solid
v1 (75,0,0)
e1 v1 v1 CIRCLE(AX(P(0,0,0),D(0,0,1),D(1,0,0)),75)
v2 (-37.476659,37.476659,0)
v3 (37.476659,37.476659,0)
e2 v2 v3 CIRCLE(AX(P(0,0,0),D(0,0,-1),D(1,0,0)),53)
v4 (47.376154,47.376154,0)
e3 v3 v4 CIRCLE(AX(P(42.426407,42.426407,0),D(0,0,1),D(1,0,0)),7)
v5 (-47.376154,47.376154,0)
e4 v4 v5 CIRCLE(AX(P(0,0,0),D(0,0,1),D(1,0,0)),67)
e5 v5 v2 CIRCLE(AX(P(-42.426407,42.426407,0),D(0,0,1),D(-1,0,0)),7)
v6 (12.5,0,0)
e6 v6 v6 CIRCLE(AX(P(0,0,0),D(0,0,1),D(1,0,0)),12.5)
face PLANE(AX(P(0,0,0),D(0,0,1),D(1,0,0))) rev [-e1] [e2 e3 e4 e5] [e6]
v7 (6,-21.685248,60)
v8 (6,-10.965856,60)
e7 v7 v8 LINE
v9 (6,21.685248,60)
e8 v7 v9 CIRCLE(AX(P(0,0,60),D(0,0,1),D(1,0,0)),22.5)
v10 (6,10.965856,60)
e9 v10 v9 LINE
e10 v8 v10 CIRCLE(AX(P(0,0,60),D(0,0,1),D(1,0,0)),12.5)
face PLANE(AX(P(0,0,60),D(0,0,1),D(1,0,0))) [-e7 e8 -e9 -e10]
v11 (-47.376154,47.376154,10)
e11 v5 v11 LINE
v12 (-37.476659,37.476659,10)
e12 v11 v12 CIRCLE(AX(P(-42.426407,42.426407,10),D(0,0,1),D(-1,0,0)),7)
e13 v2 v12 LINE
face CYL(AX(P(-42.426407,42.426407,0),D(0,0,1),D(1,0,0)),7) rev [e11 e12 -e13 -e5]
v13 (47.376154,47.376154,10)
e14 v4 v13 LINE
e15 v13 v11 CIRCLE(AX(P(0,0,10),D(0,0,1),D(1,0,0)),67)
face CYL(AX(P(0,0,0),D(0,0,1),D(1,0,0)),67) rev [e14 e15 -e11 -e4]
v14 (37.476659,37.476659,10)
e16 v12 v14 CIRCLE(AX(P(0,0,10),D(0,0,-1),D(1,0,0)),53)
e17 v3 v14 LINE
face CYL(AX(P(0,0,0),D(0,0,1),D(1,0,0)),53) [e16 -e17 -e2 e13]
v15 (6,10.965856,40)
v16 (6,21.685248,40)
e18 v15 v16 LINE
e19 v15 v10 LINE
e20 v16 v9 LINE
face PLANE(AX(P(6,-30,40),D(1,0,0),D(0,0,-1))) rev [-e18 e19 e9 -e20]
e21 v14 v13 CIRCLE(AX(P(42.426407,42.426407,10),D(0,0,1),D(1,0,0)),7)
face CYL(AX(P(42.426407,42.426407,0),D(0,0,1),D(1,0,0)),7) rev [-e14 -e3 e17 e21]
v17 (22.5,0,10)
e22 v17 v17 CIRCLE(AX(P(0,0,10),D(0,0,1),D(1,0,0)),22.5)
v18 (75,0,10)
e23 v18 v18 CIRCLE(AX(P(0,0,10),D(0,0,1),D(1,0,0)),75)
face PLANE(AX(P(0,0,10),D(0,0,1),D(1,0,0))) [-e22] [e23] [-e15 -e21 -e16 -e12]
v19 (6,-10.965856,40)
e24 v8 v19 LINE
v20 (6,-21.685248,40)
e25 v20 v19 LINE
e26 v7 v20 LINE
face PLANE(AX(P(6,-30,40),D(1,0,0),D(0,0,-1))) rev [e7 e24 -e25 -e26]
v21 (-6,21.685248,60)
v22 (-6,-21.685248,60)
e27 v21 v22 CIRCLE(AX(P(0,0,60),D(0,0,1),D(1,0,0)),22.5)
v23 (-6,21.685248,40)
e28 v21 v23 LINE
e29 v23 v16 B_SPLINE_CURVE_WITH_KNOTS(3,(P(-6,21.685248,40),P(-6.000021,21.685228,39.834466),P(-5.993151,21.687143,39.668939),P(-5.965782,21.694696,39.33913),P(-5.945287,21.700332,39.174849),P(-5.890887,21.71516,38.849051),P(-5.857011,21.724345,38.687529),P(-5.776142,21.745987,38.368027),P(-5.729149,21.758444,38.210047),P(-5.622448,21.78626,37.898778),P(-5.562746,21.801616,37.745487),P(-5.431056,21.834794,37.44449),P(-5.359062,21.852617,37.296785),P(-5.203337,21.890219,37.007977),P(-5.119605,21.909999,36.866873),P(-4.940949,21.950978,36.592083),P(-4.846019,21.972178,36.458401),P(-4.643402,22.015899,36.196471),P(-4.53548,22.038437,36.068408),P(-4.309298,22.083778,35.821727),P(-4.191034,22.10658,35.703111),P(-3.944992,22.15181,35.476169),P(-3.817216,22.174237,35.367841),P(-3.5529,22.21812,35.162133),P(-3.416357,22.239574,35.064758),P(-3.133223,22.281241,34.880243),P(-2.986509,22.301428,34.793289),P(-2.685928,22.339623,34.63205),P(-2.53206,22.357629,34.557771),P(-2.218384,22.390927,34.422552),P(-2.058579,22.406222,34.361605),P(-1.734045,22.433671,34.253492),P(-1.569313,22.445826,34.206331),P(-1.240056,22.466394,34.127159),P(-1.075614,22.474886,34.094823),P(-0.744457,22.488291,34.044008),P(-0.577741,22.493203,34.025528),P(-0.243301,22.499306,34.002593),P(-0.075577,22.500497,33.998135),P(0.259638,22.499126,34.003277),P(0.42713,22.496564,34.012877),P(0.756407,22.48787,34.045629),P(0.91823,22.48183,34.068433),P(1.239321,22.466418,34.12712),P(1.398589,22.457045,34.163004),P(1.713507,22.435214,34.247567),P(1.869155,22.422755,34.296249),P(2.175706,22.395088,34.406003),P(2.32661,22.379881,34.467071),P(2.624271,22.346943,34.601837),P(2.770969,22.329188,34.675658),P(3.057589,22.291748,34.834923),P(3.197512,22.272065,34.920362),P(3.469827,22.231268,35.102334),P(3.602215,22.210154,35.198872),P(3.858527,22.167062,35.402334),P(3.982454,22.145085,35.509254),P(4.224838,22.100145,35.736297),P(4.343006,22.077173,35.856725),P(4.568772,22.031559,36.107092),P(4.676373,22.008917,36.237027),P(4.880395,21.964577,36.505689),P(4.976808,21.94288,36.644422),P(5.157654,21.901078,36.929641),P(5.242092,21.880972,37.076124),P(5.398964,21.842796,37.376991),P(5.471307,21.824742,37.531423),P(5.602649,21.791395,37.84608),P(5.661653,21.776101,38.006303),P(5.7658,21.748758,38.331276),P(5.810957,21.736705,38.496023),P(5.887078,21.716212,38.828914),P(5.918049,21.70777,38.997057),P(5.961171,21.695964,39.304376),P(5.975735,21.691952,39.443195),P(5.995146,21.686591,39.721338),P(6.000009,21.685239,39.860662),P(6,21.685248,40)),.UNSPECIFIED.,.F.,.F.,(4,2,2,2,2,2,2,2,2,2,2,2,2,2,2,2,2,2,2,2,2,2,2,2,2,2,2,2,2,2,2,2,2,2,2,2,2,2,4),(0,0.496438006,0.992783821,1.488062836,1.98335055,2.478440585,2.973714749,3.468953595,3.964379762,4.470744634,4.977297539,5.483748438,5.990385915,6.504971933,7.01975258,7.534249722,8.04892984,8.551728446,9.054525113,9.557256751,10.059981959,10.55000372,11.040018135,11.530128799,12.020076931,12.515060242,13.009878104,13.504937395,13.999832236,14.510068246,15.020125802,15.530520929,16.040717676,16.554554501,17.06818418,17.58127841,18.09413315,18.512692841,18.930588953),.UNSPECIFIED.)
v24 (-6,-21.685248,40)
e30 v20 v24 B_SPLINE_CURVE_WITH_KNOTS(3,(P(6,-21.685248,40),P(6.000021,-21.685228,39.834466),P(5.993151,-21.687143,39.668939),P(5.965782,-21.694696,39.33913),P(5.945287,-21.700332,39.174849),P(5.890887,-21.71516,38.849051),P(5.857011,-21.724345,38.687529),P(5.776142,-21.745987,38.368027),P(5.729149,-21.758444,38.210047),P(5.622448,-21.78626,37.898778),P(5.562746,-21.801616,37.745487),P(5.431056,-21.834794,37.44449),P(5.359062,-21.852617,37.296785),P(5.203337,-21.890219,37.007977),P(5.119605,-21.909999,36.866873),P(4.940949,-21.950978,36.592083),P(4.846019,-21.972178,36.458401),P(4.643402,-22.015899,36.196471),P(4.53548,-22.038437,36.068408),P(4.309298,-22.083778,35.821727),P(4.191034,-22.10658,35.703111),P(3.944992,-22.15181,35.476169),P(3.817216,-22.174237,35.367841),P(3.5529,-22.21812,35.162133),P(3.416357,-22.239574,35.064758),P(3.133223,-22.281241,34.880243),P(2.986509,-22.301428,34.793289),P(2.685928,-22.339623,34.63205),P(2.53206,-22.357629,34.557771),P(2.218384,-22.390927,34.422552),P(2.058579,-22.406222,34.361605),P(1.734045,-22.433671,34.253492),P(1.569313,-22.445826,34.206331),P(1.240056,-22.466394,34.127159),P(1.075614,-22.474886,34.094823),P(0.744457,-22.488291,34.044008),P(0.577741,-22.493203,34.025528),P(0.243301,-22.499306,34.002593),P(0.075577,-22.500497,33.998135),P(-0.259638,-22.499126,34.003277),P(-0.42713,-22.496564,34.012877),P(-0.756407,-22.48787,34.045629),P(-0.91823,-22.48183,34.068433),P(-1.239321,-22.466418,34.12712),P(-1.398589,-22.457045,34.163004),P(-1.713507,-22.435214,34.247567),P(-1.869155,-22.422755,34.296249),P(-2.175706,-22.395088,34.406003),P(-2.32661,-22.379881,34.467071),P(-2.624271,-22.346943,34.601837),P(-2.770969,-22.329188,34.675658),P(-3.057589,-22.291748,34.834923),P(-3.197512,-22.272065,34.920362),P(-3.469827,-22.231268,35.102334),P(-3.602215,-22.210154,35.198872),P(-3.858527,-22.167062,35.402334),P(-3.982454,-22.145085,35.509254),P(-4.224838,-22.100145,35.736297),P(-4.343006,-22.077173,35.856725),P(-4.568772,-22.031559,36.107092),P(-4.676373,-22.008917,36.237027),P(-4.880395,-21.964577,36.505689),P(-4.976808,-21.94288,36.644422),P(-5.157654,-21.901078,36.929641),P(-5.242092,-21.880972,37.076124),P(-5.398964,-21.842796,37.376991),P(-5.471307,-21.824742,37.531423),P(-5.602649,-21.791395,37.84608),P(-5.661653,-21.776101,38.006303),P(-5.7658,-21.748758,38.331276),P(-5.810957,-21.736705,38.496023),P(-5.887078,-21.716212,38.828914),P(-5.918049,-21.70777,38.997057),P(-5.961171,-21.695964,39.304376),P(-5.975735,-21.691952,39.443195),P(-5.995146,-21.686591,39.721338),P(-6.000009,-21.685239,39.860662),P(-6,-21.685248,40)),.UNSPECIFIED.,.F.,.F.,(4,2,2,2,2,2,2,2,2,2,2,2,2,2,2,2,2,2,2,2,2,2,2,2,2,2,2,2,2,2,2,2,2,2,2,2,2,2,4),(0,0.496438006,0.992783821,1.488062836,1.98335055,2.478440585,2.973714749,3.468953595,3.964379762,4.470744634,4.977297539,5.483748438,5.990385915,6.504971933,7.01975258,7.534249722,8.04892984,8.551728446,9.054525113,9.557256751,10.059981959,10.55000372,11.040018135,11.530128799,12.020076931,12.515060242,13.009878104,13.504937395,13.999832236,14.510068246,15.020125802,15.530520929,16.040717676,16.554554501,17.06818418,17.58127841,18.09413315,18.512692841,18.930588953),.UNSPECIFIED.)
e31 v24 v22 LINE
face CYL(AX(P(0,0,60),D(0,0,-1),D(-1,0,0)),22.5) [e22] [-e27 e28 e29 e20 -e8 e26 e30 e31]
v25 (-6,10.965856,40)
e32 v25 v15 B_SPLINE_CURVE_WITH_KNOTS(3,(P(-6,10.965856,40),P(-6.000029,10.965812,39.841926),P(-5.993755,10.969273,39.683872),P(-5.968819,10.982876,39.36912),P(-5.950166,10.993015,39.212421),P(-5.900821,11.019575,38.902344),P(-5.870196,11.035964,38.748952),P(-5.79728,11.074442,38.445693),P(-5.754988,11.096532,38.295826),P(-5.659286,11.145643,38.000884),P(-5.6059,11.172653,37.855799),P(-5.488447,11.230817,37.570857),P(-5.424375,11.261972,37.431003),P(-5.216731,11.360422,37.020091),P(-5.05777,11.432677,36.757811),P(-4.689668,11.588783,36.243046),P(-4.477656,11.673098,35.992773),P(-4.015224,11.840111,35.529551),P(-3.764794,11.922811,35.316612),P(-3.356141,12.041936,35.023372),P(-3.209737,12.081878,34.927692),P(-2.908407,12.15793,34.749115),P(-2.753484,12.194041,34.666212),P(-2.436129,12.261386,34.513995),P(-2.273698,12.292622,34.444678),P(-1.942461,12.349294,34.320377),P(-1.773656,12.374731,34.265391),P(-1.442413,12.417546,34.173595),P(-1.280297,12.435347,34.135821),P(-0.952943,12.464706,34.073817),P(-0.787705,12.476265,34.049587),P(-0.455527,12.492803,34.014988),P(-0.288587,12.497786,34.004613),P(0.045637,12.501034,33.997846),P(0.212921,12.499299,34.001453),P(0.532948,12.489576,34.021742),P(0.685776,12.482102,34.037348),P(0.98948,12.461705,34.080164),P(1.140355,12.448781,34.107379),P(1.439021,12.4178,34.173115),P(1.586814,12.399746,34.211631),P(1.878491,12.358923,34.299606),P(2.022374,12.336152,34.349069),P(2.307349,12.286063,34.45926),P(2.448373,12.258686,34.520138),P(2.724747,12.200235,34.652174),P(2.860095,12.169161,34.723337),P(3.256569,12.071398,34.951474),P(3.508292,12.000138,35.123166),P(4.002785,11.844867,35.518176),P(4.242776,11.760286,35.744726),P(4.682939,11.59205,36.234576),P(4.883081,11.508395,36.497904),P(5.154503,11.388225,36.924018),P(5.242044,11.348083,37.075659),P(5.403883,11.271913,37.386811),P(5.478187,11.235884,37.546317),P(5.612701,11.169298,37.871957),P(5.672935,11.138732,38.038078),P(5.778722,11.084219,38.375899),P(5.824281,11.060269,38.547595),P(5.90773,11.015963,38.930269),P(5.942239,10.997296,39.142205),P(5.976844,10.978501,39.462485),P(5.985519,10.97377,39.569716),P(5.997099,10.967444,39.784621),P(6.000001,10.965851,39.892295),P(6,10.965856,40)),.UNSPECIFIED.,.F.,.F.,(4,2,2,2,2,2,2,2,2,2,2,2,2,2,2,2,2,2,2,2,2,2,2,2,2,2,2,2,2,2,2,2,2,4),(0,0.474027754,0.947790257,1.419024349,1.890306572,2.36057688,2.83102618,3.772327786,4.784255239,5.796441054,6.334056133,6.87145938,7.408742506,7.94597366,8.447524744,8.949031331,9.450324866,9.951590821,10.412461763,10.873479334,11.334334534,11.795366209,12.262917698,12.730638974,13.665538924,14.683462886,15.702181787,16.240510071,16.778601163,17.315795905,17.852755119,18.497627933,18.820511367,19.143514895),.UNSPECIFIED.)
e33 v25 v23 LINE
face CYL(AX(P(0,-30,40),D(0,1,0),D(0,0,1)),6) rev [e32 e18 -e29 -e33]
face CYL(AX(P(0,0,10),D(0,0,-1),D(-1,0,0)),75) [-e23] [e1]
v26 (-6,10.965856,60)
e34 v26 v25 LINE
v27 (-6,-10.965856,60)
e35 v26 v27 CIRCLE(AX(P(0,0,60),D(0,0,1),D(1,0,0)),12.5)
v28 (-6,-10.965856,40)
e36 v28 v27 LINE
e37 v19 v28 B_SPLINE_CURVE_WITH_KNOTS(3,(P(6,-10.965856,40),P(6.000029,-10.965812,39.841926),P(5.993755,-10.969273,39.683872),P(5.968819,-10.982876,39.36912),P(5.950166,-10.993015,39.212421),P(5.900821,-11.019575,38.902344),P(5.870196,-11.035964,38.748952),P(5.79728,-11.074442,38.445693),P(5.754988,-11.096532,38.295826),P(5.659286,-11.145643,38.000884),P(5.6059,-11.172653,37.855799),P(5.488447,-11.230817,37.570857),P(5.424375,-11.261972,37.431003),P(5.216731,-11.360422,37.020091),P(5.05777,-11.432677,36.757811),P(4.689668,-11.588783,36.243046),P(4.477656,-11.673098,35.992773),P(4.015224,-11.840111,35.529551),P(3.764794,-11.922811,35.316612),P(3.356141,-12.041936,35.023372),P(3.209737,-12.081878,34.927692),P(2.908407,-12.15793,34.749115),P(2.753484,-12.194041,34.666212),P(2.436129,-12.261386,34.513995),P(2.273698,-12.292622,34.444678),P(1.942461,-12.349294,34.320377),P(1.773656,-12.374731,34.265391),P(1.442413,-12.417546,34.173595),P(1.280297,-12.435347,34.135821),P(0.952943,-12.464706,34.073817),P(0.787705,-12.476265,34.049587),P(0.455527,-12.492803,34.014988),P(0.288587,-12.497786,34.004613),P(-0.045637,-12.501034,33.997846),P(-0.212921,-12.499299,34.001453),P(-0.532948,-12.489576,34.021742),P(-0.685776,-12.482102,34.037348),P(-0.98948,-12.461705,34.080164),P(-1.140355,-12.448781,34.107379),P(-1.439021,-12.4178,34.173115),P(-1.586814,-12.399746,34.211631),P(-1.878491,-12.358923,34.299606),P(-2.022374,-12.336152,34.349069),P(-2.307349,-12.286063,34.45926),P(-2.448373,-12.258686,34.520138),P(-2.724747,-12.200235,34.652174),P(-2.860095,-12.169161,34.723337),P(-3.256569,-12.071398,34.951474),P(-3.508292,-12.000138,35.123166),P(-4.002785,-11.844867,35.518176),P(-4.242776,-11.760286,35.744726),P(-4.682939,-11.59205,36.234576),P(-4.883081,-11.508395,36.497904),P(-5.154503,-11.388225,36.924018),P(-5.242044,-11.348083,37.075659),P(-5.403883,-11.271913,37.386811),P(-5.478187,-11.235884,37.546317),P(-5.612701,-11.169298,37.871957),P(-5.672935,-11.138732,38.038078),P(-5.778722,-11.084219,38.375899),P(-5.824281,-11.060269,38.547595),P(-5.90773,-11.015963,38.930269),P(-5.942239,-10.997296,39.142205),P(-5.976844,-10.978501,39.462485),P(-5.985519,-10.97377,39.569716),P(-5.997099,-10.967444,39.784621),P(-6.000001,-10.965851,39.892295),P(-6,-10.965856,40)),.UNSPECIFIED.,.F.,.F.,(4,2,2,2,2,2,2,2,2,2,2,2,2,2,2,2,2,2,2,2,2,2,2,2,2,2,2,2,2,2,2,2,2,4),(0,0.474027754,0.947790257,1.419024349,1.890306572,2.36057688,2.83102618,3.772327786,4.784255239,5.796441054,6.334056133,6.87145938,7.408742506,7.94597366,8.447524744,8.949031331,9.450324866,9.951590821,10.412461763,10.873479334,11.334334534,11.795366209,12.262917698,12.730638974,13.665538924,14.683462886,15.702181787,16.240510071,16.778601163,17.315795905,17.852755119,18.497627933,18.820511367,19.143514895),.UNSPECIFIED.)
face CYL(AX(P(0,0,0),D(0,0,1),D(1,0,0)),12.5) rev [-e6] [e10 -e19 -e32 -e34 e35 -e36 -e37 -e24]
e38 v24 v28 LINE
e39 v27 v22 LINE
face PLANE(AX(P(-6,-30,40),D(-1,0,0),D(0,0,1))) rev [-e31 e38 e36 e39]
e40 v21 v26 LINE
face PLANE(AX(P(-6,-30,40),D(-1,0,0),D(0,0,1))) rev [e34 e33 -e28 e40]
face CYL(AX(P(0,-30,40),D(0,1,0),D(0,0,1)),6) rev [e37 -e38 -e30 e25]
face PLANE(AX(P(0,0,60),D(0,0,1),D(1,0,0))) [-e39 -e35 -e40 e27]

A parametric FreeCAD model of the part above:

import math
import FreeCAD as App
import Part
import Sketcher

V = App.Vector

doc = App.newDocument("Part")
body = doc.addObject("PartDesign::Body", "Body")

# Sketch on XY plane
sketch1 = body.newObject("Sketcher::SketchObject", "Sketch")
sketch1.AttachmentSupport = (doc.getObject("XY_Plane"), [""])
sketch1.MapMode = "FlatFace"
sketch1.addGeometry(Part.Circle(V(0, 0, 0), V(0, 0, 1), 75), False)
sketch1.addConstraint([
    Sketcher.Constraint("Coincident", 0, 3, -1, 1),
    Sketcher.Constraint("Diameter", 0, 150.0),
])
pad1 = body.newObject("PartDesign::Pad", "Pad")
pad1.Profile = sketch1
pad1.Length = 10

# Sketch on XY plane
sketch2 = body.newObject("Sketcher::SketchObject", "Sketch001")
sketch2.AttachmentSupport = (doc.getObject("XY_Plane"), [""])
sketch2.MapMode = "FlatFace"
sketch2.AttachmentOffset = App.Placement(V(0, 0, 10), App.Rotation())
sketch2.addGeometry(Part.Circle(V(0, 0, 0), V(0, 0, 1), 22), False)
sketch2.addConstraint([
    Sketcher.Constraint("Coincident", 0, 3, -1, 1),
    Sketcher.Constraint("Diameter", 0, 45.0),
])
pad2 = body.newObject("PartDesign::Pad", "Pad001")
pad2.Profile = sketch2
pad2.Length = 50

# Sketch on XZ plane
sketch3 = body.newObject("Sketcher::SketchObject", "Sketch002")
sketch3.AttachmentSupport = (doc.getObject("XZ_Plane"), [""])
sketch3.MapMode = "FlatFace"
sketch3.addGeometry([
    Part.LineSegment(V(6, 60, 0), V(6, 40, 0)),
    Part.ArcOfCircle(Part.Circle(V(0, 40, 0), V(0, 0, 1), 6), math.radians(180), math.radians(360)),
    Part.LineSegment(V(-6, 40, 0), V(-6, 60, 0)),
    Part.ArcOfCircle(Part.Circle(V(0, 60, 0), V(0, 0, 1), 6), math.radians(0), math.radians(180)),
], False)
sketch3.addConstraint([
    Sketcher.Constraint("Tangent", 0, 2, 1, 2),
    Sketcher.Constraint("Tangent", 1, 1, 2, 1),
    Sketcher.Constraint("Tangent", 2, 2, 3, 2),
    Sketcher.Constraint("Tangent", 3, 1, 0, 1),
    Sketcher.Constraint("Vertical", 0),
    Sketcher.Constraint("Vertical", 2),
    Sketcher.Constraint("PointOnObject", 1, 3, -2),
    Sketcher.Constraint("Radius", 1, 6.0),
    Sketcher.Constraint("DistanceY", 0, 2, 0, 1, 20.0),
    Sketcher.Constraint("DistanceY", -1, 1, 1, 3, 40.0),
])
pocket1 = body.newObject("PartDesign::Pocket", "Pocket")
pocket1.Profile = sketch3
pocket1.Length = 60
pocket1.Midplane = True

# Sketch on XY plane
sketch4 = body.newObject("Sketcher::SketchObject", "Sketch003")
sketch4.AttachmentSupport = (doc.getObject("XY_Plane"), [""])
sketch4.MapMode = "FlatFace"
sketch4.AttachmentOffset = App.Placement(V(0, 0, 10), App.Rotation())
sketch4.addGeometry([
    Part.ArcOfCircle(Part.Circle(V(0, 0, 0), V(0, 0, 1), 53), math.radians(45), math.radians(135)),
    Part.ArcOfCircle(Part.Circle(V(42, 42, 0), V(0, 0, 1), 7), math.radians(-135), math.radians(45)),
    Part.ArcOfCircle(Part.Circle(V(0, 0, 0), V(0, 0, 1), 67), math.radians(45), math.radians(135)),
    Part.ArcOfCircle(Part.Circle(V(-42, 42, 0), V(0, 0, 1), 7), math.radians(135), math.radians(315)),
], False)
sketch4.addConstraint([
    Sketcher.Constraint("Tangent", 0, 1, 1, 1),
    Sketcher.Constraint("Tangent", 1, 2, 2, 1),
    Sketcher.Constraint("Tangent", 2, 2, 3, 1),
    Sketcher.Constraint("Tangent", 3, 2, 0, 2),
    Sketcher.Constraint("Coincident", 0, 3, -1, 1),
    Sketcher.Constraint("Coincident", 2, 3, -1, 1),
    Sketcher.Constraint("Horizontal", 1, 3, 3, 3),
    Sketcher.Constraint("Radius", 0, 53.0),
    Sketcher.Constraint("Radius", 1, 7.0),
    Sketcher.Constraint("DistanceX", -1, 1, 0, 1, 37.476659),
])
pocket2 = body.newObject("PartDesign::Pocket", "Pocket001")
pocket2.Profile = sketch4
pocket2.Type = "ThroughAll"

# Sketch on XY plane
sketch5 = body.newObject("Sketcher::SketchObject", "Sketch004")
sketch5.AttachmentSupport = (doc.getObject("XY_Plane"), [""])
sketch5.MapMode = "FlatFace"
sketch5.AttachmentOffset = App.Placement(V(0, 0, 60), App.Rotation())
sketch5.addGeometry(Part.Circle(V(0, 0, 0), V(0, 0, 1), 12), False)
sketch5.addConstraint([
    Sketcher.Constraint("Coincident", 0, 3, -1, 1),
    Sketcher.Constraint("Diameter", 0, 25.0),
])
pocket3 = body.newObject("PartDesign::Pocket", "Pocket002")
pocket3.Profile = sketch5
pocket3.Type = "ThroughAll"

doc.recompute()
